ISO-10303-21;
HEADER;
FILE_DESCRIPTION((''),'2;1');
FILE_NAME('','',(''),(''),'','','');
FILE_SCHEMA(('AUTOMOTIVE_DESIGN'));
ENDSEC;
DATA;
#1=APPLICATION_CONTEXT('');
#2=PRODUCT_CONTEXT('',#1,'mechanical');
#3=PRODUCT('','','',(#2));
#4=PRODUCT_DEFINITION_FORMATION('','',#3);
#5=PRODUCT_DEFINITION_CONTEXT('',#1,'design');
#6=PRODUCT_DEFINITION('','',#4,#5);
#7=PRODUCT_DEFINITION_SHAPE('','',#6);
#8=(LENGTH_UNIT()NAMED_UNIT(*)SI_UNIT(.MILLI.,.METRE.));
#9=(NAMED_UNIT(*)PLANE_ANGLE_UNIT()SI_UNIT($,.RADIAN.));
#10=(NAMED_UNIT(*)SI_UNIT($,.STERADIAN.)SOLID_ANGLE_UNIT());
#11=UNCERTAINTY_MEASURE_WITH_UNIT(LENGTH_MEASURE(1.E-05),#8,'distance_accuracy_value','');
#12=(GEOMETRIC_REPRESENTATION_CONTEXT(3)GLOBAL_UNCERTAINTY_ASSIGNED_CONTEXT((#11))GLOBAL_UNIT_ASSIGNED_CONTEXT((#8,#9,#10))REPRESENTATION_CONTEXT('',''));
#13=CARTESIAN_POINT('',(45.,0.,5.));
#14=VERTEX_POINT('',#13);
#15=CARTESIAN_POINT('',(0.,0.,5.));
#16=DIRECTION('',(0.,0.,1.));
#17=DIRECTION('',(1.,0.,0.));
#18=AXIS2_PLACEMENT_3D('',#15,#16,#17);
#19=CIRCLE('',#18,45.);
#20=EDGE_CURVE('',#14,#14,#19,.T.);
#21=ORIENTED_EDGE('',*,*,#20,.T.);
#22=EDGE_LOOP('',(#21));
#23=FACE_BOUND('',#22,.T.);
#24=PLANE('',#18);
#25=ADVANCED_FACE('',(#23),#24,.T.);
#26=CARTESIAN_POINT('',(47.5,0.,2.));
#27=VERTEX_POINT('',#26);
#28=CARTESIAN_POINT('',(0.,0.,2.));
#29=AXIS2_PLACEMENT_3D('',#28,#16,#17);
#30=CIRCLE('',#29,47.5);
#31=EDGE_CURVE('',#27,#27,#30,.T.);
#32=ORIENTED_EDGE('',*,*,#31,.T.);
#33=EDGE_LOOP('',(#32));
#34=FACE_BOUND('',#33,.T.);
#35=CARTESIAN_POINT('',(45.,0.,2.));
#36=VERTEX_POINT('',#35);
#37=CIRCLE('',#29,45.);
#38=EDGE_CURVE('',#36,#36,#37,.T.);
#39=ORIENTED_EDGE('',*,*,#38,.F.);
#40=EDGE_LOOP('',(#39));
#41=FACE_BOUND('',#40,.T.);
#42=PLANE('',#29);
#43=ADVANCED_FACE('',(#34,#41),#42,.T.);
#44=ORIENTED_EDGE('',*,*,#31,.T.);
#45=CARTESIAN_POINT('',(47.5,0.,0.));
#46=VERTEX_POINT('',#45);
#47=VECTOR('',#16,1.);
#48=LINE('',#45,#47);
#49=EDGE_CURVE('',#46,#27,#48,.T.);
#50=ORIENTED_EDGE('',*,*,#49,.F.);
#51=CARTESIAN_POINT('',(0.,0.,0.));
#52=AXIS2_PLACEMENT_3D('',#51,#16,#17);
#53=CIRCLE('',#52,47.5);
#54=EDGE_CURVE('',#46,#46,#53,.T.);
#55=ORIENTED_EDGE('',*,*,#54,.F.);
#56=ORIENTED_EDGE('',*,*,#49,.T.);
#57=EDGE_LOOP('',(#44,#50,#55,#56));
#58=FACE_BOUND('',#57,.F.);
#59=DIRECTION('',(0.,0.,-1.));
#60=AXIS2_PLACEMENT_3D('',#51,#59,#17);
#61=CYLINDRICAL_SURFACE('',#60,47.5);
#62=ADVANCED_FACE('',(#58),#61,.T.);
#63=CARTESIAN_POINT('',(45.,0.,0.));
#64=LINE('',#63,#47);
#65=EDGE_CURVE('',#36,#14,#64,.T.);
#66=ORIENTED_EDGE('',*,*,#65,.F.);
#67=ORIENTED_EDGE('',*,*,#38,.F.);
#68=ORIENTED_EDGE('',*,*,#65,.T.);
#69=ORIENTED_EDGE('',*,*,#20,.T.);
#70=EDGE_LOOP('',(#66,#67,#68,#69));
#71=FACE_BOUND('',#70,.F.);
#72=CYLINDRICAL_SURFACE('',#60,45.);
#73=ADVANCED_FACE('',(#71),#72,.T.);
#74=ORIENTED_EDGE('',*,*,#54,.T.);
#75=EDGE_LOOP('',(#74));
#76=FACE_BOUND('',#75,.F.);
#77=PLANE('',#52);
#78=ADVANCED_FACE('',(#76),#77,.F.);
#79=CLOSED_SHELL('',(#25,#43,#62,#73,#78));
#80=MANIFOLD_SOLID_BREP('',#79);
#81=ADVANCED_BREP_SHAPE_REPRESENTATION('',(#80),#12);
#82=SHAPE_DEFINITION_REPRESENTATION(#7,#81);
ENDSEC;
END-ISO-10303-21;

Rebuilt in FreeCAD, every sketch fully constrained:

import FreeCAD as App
import Part
import Sketcher
from FreeCAD import Vector

doc = App.newDocument("Part")
body = doc.addObject("PartDesign::Body", "Body")

# Sketch on XY plane
sketch1 = body.newObject("Sketcher::SketchObject", "Sketch")
sketch1.AttachmentSupport = (doc.getObject("XY_Plane"), [""])
sketch1.MapMode = "FlatFace"
sketch1.addGeometry(Part.Circle(Vector(0, 0, 0), Vector(0, 0, 1), 45), False)
sketch1.addConstraint(Sketcher.Constraint("Coincident", 0, 3, -1, 1))
sketch1.addConstraint(Sketcher.Constraint("Diameter", 0, 90.0))
pad1 = body.newObject("PartDesign::Pad", "Pad")
pad1.Profile = sketch1
pad1.Length = 5

# Sketch on XY plane
sketch2 = body.newObject("Sketcher::SketchObject", "Sketch001")
sketch2.AttachmentSupport = (doc.getObject("XY_Plane"), [""])
sketch2.MapMode = "FlatFace"
sketch2.addGeometry(Part.Circle(Vector(0, 0, 0), Vector(0, 0, 1), 48), False)
sketch2.addGeometry(Part.Circle(Vector(0, 0, 0), Vector(0, 0, 1), 45), False)
sketch2.addConstraint(Sketcher.Constraint("Coincident", 0, 3, -1, 1))
sketch2.addConstraint(Sketcher.Constraint("Coincident", 1, 3, -1, 1))
sketch2.addConstraint(Sketcher.Constraint("Diameter", 0, 95.0))
sketch2.addConstraint(Sketcher.Constraint("Diameter", 1, 90.0))
pad2 = body.newObject("PartDesign::Pad", "Pad001")
pad2.Profile = sketch2
pad2.Length = 2

doc.recompute()
